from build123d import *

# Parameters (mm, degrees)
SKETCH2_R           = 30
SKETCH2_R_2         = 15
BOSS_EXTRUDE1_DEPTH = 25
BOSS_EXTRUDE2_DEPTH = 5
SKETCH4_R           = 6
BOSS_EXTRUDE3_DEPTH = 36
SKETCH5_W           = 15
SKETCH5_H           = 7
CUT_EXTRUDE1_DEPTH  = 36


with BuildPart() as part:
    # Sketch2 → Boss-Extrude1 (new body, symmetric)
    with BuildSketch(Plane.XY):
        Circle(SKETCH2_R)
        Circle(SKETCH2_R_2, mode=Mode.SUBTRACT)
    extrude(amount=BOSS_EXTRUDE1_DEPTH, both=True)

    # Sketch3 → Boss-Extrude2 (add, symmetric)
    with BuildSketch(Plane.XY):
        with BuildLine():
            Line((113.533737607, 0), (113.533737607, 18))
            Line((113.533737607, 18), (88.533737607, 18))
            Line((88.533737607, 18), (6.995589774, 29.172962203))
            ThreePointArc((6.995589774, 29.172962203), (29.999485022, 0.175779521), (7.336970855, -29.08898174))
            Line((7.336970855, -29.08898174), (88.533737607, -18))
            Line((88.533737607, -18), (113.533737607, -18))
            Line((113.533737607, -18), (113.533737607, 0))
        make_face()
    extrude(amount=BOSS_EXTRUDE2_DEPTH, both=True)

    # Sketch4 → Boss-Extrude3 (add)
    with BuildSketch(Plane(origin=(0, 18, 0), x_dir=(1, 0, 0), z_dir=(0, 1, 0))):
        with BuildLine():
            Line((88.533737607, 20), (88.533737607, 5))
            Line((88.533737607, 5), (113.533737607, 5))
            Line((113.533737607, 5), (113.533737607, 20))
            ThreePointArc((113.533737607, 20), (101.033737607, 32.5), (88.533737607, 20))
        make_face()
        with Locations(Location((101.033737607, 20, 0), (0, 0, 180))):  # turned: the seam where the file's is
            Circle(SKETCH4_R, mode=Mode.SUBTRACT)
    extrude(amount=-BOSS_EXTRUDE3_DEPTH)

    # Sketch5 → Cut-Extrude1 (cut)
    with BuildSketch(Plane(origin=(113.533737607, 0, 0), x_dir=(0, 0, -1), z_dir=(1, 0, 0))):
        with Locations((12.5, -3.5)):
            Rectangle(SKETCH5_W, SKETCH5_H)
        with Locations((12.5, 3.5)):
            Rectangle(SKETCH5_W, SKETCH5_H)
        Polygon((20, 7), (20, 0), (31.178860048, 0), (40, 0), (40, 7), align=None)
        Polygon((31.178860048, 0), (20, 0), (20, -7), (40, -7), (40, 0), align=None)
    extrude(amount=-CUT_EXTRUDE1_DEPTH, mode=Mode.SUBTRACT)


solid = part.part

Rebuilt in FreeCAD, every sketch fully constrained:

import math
import FreeCAD as App
import Part
import Sketcher
from FreeCAD import Vector


def add_polygon(sketch, points):
    """Adds a closed chain of lines whose ends are joined by coincident constraints."""
    first, n = sketch.GeometryCount, len(points)
    for a, b in zip(points, points[1:] + points[:1]):
        sketch.addGeometry(Part.LineSegment(App.Vector(*a, 0), App.Vector(*b, 0)), False)
    for i in range(n):
        sketch.addConstraint(Sketcher.Constraint("Coincident", first + i, 2, first + (i + 1) % n, 1))

doc = App.newDocument("Part")
params = doc.addObject("Spreadsheet::Sheet", "Params")
for row, (alias, value) in enumerate([
    ("sketch1_diameter", "60 mm"),
    ("sketch1_diameter2", "30 mm"),
    ("pad1_length", "50 mm"),
    ("sketch2_radius", "30 mm"),
    ("sketch2_width", "25 mm"),
    ("sketch2_height", "36 mm"),
    ("pad2_length", "10 mm"),
    ("sketch3_diameter", "12 mm"),
    ("sketch3_radius", "12.5 mm"),
    ("sketch3_height", "15 mm"),
    ("pad3_length", "36 mm"),
    ("sketch4_width", "14 mm"),
    ("sketch4_height", "35 mm"),
    ("pocket1_length", "36 mm"),
], start=1):
    params.set(f"A{row}", alias)
    params.set(f"B{row}", "=" + value)
    params.setAlias(f"B{row}", alias)

body = doc.addObject("PartDesign::Body", "Body")

sketch1 = body.newObject("Sketcher::SketchObject", "Sketch")
sketch1.AttachmentSupport = (doc.getObject("XY_Plane"), [""])
sketch1.MapMode = "FlatFace"
sketch1.addGeometry([
    Part.Circle(Vector(0, 0, 0), Vector(0, 0, 1), 30),
    Part.Circle(Vector(0, 0, 0), Vector(0, 0, 1), 15),
], False)
sketch1.addConstraint([
    Sketcher.Constraint("Coincident", 0, 3, -1, 1),
    Sketcher.Constraint("Coincident", 1, 3, -1, 1),
    Sketcher.Constraint("Diameter", 0, 60.0),
    Sketcher.Constraint("Diameter", 1, 30.0),
])
sketch1.setExpression("Constraints[2]", "Params.sketch1_diameter")
sketch1.setExpression("Constraints[3]", "Params.sketch1_diameter2")
pad1 = body.newObject("PartDesign::Pad", "Pad")
pad1.Profile = sketch1
pad1.setExpression("Length", "Params.pad1_length")
pad1.Midplane = True

sketch2 = body.newObject("Sketcher::SketchObject", "Sketch001")
sketch2.AttachmentSupport = (doc.getObject("XY_Plane"), [""])
sketch2.MapMode = "FlatFace"
sketch2.addGeometry([
    Part.LineSegment(Vector(113.533738, 18, 0), Vector(88.533738, 18, 0)),
    Part.LineSegment(Vector(88.533738, 18, 0), Vector(6.99559, 29.172962, 0)),
    Part.ArcOfCircle(Part.Circle(Vector(0, 0, 0), Vector(0, 0, 1), 30), math.radians(-75.843831), math.radians(76.515263)),
    Part.LineSegment(Vector(7.336971, -29.088982, 0), Vector(88.533738, -18, 0)),
    Part.LineSegment(Vector(88.533738, -18, 0), Vector(113.533738, -18, 0)),
    Part.LineSegment(Vector(113.533738, -18, 0), Vector(113.533738, 18, 0)),
], False)
sketch2.addConstraint([
    Sketcher.Constraint("Coincident", 0, 2, 1, 1),
    Sketcher.Constraint("Coincident", 1, 2, 2, 2),
    Sketcher.Constraint("Coincident", 2, 1, 3, 1),
    Sketcher.Constraint("Coincident", 3, 2, 4, 1),
    Sketcher.Constraint("Coincident", 4, 2, 5, 1),
    Sketcher.Constraint("Coincident", 5, 2, 0, 1),
    Sketcher.Constraint("Horizontal", 0),
    Sketcher.Constraint("Horizontal", 4),
    Sketcher.Constraint("Vertical", 5),
    Sketcher.Constraint("Coincident", 2, 3, -1, 1),
    Sketcher.Constraint("Symmetric", 0, 2, 3, 2, -1),
    Sketcher.Constraint("Radius", 2, 30.0),
    Sketcher.Constraint("DistanceX", 0, 2, 0, 1, 25.0),
    Sketcher.Constraint("DistanceY", 5, 1, 5, 2, 36.0),
    Sketcher.Constraint("Distance", 1, 82.300089),
    Sketcher.Constraint("DistanceX", -1, 1, 1, 2, 6.99559),
    Sketcher.Constraint("DistanceX", -1, 1, 2, 1, 7.336971),
])
sketch2.setExpression("Constraints[11]", "Params.sketch2_radius")
sketch2.setExpression("Constraints[12]", "Params.sketch2_width")
sketch2.setExpression("Constraints[13]", "Params.sketch2_height")
pad2 = body.newObject("PartDesign::Pad", "Pad001")
pad2.Profile = sketch2
pad2.setExpression("Length", "Params.pad2_length")
pad2.Midplane = True

sketch3 = body.newObject("Sketcher::SketchObject", "Sketch002")
sketch3.AttachmentSupport = (doc.getObject("XZ_Plane"), [""])
sketch3.MapMode = "FlatFace"
sketch3.AttachmentOffset = App.Placement(Vector(0, 0, -18), App.Rotation())
sketch3.addGeometry([
    Part.LineSegment(Vector(88.533738, -20, 0), Vector(88.533738, -5, 0)),
    Part.LineSegment(Vector(88.533738, -5, 0), Vector(113.533738, -5, 0)),
    Part.LineSegment(Vector(113.533738, -5, 0), Vector(113.533738, -20, 0)),
    Part.ArcOfCircle(Part.Circle(Vector(101.033738, -20, 0), Vector(0, 0, 1), 12.5), math.radians(180), math.radians(360)),
    Part.Circle(Vector(101.033738, -20, 0), Vector(0, 0, 1), 6),
], False)
sketch3.addConstraint([
    Sketcher.Constraint("Coincident", 0, 2, 1, 1),
    Sketcher.Constraint("Coincident", 1, 2, 2, 1),
    Sketcher.Constraint("Tangent", 2, 2, 3, 2),
    Sketcher.Constraint("Tangent", 3, 1, 0, 1),
    Sketcher.Constraint("Vertical", 0),
    Sketcher.Constraint("Horizontal", 1),
    Sketcher.Constraint("Vertical", 2),
    Sketcher.Constraint("Coincident", 4, 3, 3, 3),
    Sketcher.Constraint("Diameter", 4, 12.0),
    Sketcher.Constraint("Radius", 3, 12.5),
    Sketcher.Constraint("DistanceY", 0, 1, 0, 2, 15.0),
    Sketcher.Constraint("DistanceY", 3, 3, -1, 1, 20.0),
    Sketcher.Constraint("DistanceX", -1, 1, 3, 3, 101.033738),
])
sketch3.setExpression("Constraints[8]", "Params.sketch3_diameter")
sketch3.setExpression("Constraints[9]", "Params.sketch3_radius")
sketch3.setExpression("Constraints[10]", "Params.sketch3_height")
pad3 = body.newObject("PartDesign::Pad", "Pad002")
pad3.Profile = sketch3
pad3.setExpression("Length", "Params.pad3_length")

sketch4 = body.newObject("Sketcher::SketchObject", "Sketch003")
sketch4.AttachmentSupport = (doc.getObject("YZ_Plane"), [""])
sketch4.MapMode = "FlatFace"
sketch4.AttachmentOffset = App.Placement(Vector(0, 0, 113.533738), App.Rotation())
add_polygon(sketch4, [(-7, -5), (-7, -40), (7, -40), (7, -5)])
sketch4.addConstraint([
    Sketcher.Constraint("Vertical", 0),
    Sketcher.Constraint("Horizontal", 1),
    Sketcher.Constraint("Vertical", 2),
    Sketcher.Constraint("Horizontal", 3),
    Sketcher.Constraint("DistanceX", 1, 1, 1, 2, 14.0),
    Sketcher.Constraint("DistanceY", 0, 2, 0, 1, 35.0),
    Sketcher.Constraint("DistanceX", 0, 2, -1, 1, 7.0),
    Sketcher.Constraint("DistanceY", 0, 2, -1, 1, 40.0),
])
sketch4.setExpression("Constraints[8]", "Params.sketch4_width")
sketch4.setExpression("Constraints[9]", "Params.sketch4_height")
pocket1 = body.newObject("PartDesign::Pocket", "Pocket")
pocket1.Profile = sketch4
pocket1.setExpression("Length", "Params.pocket1_length")

doc.recompute()
